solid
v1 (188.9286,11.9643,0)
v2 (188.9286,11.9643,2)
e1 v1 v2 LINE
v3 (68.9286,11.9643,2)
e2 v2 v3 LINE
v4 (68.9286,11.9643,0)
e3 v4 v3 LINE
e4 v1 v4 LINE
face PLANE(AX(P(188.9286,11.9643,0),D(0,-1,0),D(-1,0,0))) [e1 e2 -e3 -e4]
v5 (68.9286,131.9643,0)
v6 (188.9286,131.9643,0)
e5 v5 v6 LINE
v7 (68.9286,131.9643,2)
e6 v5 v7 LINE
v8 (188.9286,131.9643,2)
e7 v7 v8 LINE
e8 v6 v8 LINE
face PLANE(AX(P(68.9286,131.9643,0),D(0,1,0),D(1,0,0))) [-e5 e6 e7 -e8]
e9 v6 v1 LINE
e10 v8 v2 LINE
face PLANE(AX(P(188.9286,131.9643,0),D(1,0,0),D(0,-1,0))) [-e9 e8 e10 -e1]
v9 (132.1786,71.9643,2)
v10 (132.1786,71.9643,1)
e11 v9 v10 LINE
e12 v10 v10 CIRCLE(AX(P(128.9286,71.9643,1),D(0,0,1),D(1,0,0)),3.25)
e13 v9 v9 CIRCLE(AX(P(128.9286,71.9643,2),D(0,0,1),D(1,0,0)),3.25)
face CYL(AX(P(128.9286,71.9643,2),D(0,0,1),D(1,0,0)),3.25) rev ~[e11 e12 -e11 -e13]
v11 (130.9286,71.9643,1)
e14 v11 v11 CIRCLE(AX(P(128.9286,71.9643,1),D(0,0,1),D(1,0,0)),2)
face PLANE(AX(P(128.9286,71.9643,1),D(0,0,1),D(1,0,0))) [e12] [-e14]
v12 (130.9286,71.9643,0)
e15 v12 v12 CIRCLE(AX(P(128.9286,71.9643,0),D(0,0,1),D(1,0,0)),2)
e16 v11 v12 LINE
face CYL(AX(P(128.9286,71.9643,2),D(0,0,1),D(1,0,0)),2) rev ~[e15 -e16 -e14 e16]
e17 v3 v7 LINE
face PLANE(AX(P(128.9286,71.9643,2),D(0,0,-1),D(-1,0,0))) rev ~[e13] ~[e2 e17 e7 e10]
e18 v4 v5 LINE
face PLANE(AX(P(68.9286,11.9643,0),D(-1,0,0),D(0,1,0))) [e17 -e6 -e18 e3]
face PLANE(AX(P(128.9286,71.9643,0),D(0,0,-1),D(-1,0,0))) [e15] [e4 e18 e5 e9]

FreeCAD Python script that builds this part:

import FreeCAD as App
import Part
import Sketcher
Q = App.Units.Quantity


def add_polygon(sketch, points):
    """Adds a closed chain of lines whose ends are joined by coincident constraints."""
    first, n = sketch.GeometryCount, len(points)
    for a, b in zip(points, points[1:] + points[:1]):
        sketch.addGeometry(Part.LineSegment(App.Vector(*a, 0), App.Vector(*b, 0)), False)
    for i in range(n):
        sketch.addConstraint(Sketcher.Constraint("Coincident", first + i, 2, first + (i + 1) % n, 1))

doc = App.newDocument("Part")
params = doc.addObject("Spreadsheet::Sheet", "Params")
for row, (alias, value) in enumerate([
    ("sketch1_width", "120 mm"),
    ("pad1_length", "2 mm"),
    ("sketch2_diameter", "4 mm"),
    ("sketch3_diameter", "6.5 mm"),
    ("pocket2_length", "1 mm"),
], start=1):
    params.set(f"A{row}", alias)
    params.set(f"B{row}", "=" + value)
    params.setAlias(f"B{row}", alias)

body = doc.addObject("PartDesign::Body", "Body")

sketch1 = doc.addObject("Sketcher::SketchObject", "Sketch")
body.addObject(sketch1)
sketch1.AttachmentSupport = (doc.XY_Plane, [""])
sketch1.MapMode = "FlatFace"
add_polygon(sketch1, [(189, 132), (69, 132), (69, 12), (189, 12)])
sketch1.addConstraint([
    Sketcher.Constraint("Horizontal", 0),
    Sketcher.Constraint("Vertical", 1),
    Sketcher.Constraint("Horizontal", 2),
    Sketcher.Constraint("Vertical", 3),
    Sketcher.Constraint("Equal", 2, 1),
    Sketcher.Constraint("DistanceX", 0, 2, 0, 1, Q("120 mm")),
    Sketcher.Constraint("DistanceX", -1, 1, 0, 2, Q("68.9286 mm")),
    Sketcher.Constraint("DistanceY", -1, 1, 0, 2, Q("131.9643 mm")),
])
sketch1.setExpression("Constraints[9]", "Params.sketch1_width")
pad1 = doc.addObject("PartDesign::Pad", "Pad")
body.addObject(pad1)
pad1.Profile = sketch1
pad1.setExpression("Length", "Params.pad1_length")

sketch2 = doc.addObject("Sketcher::SketchObject", "Sketch001")
body.addObject(sketch2)
sketch2.AttachmentSupport = (doc.XY_Plane, [""])
sketch2.MapMode = "FlatFace"
sketch2.AttachmentOffset = App.Placement(App.Vector(0, 0, 2), App.Rotation())
sketch2.addGeometry(Part.Circle(App.Vector(128.9, 72, 0), App.Vector(0, 0, 1), 2), False)
sketch2.addConstraint([
    Sketcher.Constraint("Diameter", 0, Q("4 mm")),
    Sketcher.Constraint("DistanceX", -1, 1, 0, 3, Q("128.9286 mm")),
    Sketcher.Constraint("DistanceY", -1, 1, 0, 3, Q("71.9643 mm")),
])
sketch2.setExpression("Constraints[0]", "Params.sketch2_diameter")
pocket1 = doc.addObject("PartDesign::Pocket", "Pocket")
body.addObject(pocket1)
pocket1.Profile = sketch2
pocket1.Type = "ThroughAll"

sketch3 = doc.addObject("Sketcher::SketchObject", "Sketch002")
body.addObject(sketch3)
sketch3.AttachmentSupport = (doc.XY_Plane, [""])
sketch3.MapMode = "FlatFace"
sketch3.AttachmentOffset = App.Placement(App.Vector(0, 0, 2), App.Rotation())
sketch3.addGeometry(Part.Circle(App.Vector(128.9, 72, 0), App.Vector(0, 0, 1), 3.2), False)
sketch3.addConstraint([
    Sketcher.Constraint("Diameter", 0, Q("6.5 mm")),
    Sketcher.Constraint("DistanceX", -1, 1, 0, 3, Q("128.9286 mm")),
    Sketcher.Constraint("DistanceY", -1, 1, 0, 3, Q("71.9643 mm")),
])
sketch3.setExpression("Constraints[0]", "Params.sketch3_diameter")
pocket2 = doc.addObject("PartDesign::Pocket", "Pocket001")
body.addObject(pocket2)
pocket2.Profile = sketch3
pocket2.setExpression("Length", "Params.pocket2_length")

doc.recompute()
